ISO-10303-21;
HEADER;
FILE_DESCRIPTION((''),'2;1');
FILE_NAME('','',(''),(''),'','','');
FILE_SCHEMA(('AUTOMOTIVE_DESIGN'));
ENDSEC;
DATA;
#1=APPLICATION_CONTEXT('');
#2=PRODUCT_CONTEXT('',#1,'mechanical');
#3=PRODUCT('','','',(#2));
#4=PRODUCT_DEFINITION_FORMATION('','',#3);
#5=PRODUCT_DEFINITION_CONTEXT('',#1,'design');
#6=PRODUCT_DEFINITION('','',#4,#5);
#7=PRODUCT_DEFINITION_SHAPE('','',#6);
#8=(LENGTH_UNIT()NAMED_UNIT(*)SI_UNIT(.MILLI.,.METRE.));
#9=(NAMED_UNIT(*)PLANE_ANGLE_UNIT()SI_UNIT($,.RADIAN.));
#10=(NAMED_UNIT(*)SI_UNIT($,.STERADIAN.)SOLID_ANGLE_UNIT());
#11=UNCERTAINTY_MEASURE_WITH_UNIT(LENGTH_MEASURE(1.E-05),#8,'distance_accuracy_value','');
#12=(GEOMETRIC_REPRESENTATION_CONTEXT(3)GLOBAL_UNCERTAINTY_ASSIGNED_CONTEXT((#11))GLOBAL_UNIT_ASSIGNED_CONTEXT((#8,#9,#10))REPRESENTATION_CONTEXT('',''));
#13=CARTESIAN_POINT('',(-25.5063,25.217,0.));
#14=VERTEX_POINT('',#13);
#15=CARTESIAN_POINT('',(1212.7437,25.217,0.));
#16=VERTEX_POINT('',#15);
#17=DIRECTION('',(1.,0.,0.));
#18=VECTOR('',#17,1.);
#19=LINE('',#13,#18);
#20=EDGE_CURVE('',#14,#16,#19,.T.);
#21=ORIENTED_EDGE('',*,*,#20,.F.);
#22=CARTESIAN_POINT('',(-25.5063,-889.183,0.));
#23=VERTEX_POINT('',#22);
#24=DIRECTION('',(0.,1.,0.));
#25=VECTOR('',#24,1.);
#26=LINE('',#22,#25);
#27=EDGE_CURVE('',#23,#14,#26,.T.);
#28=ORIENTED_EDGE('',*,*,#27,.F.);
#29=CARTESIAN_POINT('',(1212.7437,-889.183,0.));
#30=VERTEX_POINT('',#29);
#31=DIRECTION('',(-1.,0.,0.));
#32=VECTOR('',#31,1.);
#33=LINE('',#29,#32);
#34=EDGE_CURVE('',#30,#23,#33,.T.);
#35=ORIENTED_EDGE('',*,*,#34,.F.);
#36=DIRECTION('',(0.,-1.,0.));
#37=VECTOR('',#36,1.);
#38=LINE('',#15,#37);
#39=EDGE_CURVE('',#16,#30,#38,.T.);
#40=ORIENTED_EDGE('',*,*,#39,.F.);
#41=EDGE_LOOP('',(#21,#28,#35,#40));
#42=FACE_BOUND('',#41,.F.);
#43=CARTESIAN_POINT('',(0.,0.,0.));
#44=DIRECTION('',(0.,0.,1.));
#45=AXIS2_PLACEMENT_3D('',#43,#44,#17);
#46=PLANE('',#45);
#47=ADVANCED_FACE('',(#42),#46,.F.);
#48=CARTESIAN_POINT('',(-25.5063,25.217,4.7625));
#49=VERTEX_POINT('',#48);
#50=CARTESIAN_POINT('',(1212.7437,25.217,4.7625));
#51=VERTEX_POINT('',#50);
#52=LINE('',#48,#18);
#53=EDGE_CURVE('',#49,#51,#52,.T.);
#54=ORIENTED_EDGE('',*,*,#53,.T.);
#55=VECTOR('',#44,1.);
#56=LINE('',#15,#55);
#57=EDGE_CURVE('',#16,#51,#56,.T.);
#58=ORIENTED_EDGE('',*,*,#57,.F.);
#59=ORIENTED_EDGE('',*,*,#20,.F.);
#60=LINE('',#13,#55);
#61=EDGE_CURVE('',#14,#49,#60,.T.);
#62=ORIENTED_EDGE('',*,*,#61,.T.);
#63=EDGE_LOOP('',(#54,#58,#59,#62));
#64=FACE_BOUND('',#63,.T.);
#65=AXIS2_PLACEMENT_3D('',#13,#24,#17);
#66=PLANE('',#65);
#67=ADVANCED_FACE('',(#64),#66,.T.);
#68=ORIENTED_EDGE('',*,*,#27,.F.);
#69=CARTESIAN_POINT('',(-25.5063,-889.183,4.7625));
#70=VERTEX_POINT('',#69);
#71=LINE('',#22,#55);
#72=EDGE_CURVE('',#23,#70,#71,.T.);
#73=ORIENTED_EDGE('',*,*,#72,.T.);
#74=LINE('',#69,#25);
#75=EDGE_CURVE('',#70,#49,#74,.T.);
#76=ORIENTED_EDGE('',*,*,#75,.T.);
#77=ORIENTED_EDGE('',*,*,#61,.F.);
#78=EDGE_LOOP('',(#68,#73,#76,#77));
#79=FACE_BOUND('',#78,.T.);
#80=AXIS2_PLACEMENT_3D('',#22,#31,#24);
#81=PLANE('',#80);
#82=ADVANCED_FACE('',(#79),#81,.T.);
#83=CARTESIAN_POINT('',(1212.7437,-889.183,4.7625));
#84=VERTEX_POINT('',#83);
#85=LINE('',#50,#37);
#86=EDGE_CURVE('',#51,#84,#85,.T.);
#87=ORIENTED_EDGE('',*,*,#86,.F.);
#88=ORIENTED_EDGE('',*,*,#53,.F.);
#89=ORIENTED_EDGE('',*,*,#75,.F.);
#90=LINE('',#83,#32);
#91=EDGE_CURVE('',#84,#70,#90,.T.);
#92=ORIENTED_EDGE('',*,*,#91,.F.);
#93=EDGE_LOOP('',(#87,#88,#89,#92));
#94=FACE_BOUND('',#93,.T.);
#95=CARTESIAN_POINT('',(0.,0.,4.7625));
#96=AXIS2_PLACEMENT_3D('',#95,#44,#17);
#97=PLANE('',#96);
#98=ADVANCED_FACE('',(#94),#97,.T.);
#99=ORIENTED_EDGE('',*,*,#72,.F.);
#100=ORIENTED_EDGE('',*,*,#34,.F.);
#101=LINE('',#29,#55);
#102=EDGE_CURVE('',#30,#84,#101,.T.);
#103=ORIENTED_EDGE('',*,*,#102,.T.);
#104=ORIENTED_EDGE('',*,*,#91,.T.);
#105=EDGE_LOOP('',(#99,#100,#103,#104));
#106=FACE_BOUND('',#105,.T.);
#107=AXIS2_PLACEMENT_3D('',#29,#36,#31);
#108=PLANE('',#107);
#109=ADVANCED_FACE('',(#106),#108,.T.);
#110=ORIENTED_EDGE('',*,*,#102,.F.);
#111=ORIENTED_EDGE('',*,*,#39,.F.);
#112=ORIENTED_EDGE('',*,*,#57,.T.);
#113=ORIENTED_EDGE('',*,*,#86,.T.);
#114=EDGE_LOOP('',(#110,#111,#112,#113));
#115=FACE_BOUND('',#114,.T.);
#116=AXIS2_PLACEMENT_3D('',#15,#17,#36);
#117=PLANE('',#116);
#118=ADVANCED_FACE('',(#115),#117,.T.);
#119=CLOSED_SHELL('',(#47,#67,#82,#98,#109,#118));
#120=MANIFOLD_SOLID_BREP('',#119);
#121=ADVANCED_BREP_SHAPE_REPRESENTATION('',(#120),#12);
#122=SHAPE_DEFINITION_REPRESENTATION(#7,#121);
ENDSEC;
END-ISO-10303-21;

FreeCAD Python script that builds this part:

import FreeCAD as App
import Part
import Sketcher
Q = App.Units.Quantity

doc = App.newDocument("Part")
body = doc.addObject("PartDesign::Body", "Body")

sketch1 = doc.addObject("Sketcher::SketchObject", "Sketch")
body.addObject(sketch1)
sketch1.AttachmentSupport = (doc.XY_Plane, [""])
sketch1.MapMode = "FlatFace"
sketch1.addGeometry([
    Part.LineSegment(App.Vector(1212.7437, 25.217, 0), App.Vector(-25.5063, 25.217, 0)),
    Part.LineSegment(App.Vector(-25.5063, 25.217, 0), App.Vector(-25.5063, -889.183, 0)),
    Part.LineSegment(App.Vector(-25.5063, -889.183, 0), App.Vector(1212.7437, -889.183, 0)),
    Part.LineSegment(App.Vector(1212.7437, -889.183, 0), App.Vector(1212.7437, 25.217, 0)),
], False)
sketch1.addConstraint([
    Sketcher.Constraint("Coincident", 0, 2, 1, 1),
    Sketcher.Constraint("Coincident", 1, 2, 2, 1),
    Sketcher.Constraint("Coincident", 2, 2, 3, 1),
    Sketcher.Constraint("Coincident", 3, 2, 0, 1),
    Sketcher.Constraint("Horizontal", 0),
    Sketcher.Constraint("Vertical", 1),
    Sketcher.Constraint("Horizontal", 2),
    Sketcher.Constraint("Vertical", 3),
    Sketcher.Constraint("DistanceY", 1, 2, 1, 1, Q("36 in")),
    Sketcher.Constraint("DistanceX", 0, 2, 0, 1, Q("48.75 in")),
    Sketcher.Constraint("DistanceY", -1, 1, 0, 2, Q("0.9928 in")),
    Sketcher.Constraint("DistanceX", 0, 2, -1, 1, 25.5063),
])
pad1 = doc.addObject("PartDesign::Pad", "Pad")
body.addObject(pad1)
pad1.Profile = sketch1
pad1.Length = Q("0.1875 in")

doc.recompute()
